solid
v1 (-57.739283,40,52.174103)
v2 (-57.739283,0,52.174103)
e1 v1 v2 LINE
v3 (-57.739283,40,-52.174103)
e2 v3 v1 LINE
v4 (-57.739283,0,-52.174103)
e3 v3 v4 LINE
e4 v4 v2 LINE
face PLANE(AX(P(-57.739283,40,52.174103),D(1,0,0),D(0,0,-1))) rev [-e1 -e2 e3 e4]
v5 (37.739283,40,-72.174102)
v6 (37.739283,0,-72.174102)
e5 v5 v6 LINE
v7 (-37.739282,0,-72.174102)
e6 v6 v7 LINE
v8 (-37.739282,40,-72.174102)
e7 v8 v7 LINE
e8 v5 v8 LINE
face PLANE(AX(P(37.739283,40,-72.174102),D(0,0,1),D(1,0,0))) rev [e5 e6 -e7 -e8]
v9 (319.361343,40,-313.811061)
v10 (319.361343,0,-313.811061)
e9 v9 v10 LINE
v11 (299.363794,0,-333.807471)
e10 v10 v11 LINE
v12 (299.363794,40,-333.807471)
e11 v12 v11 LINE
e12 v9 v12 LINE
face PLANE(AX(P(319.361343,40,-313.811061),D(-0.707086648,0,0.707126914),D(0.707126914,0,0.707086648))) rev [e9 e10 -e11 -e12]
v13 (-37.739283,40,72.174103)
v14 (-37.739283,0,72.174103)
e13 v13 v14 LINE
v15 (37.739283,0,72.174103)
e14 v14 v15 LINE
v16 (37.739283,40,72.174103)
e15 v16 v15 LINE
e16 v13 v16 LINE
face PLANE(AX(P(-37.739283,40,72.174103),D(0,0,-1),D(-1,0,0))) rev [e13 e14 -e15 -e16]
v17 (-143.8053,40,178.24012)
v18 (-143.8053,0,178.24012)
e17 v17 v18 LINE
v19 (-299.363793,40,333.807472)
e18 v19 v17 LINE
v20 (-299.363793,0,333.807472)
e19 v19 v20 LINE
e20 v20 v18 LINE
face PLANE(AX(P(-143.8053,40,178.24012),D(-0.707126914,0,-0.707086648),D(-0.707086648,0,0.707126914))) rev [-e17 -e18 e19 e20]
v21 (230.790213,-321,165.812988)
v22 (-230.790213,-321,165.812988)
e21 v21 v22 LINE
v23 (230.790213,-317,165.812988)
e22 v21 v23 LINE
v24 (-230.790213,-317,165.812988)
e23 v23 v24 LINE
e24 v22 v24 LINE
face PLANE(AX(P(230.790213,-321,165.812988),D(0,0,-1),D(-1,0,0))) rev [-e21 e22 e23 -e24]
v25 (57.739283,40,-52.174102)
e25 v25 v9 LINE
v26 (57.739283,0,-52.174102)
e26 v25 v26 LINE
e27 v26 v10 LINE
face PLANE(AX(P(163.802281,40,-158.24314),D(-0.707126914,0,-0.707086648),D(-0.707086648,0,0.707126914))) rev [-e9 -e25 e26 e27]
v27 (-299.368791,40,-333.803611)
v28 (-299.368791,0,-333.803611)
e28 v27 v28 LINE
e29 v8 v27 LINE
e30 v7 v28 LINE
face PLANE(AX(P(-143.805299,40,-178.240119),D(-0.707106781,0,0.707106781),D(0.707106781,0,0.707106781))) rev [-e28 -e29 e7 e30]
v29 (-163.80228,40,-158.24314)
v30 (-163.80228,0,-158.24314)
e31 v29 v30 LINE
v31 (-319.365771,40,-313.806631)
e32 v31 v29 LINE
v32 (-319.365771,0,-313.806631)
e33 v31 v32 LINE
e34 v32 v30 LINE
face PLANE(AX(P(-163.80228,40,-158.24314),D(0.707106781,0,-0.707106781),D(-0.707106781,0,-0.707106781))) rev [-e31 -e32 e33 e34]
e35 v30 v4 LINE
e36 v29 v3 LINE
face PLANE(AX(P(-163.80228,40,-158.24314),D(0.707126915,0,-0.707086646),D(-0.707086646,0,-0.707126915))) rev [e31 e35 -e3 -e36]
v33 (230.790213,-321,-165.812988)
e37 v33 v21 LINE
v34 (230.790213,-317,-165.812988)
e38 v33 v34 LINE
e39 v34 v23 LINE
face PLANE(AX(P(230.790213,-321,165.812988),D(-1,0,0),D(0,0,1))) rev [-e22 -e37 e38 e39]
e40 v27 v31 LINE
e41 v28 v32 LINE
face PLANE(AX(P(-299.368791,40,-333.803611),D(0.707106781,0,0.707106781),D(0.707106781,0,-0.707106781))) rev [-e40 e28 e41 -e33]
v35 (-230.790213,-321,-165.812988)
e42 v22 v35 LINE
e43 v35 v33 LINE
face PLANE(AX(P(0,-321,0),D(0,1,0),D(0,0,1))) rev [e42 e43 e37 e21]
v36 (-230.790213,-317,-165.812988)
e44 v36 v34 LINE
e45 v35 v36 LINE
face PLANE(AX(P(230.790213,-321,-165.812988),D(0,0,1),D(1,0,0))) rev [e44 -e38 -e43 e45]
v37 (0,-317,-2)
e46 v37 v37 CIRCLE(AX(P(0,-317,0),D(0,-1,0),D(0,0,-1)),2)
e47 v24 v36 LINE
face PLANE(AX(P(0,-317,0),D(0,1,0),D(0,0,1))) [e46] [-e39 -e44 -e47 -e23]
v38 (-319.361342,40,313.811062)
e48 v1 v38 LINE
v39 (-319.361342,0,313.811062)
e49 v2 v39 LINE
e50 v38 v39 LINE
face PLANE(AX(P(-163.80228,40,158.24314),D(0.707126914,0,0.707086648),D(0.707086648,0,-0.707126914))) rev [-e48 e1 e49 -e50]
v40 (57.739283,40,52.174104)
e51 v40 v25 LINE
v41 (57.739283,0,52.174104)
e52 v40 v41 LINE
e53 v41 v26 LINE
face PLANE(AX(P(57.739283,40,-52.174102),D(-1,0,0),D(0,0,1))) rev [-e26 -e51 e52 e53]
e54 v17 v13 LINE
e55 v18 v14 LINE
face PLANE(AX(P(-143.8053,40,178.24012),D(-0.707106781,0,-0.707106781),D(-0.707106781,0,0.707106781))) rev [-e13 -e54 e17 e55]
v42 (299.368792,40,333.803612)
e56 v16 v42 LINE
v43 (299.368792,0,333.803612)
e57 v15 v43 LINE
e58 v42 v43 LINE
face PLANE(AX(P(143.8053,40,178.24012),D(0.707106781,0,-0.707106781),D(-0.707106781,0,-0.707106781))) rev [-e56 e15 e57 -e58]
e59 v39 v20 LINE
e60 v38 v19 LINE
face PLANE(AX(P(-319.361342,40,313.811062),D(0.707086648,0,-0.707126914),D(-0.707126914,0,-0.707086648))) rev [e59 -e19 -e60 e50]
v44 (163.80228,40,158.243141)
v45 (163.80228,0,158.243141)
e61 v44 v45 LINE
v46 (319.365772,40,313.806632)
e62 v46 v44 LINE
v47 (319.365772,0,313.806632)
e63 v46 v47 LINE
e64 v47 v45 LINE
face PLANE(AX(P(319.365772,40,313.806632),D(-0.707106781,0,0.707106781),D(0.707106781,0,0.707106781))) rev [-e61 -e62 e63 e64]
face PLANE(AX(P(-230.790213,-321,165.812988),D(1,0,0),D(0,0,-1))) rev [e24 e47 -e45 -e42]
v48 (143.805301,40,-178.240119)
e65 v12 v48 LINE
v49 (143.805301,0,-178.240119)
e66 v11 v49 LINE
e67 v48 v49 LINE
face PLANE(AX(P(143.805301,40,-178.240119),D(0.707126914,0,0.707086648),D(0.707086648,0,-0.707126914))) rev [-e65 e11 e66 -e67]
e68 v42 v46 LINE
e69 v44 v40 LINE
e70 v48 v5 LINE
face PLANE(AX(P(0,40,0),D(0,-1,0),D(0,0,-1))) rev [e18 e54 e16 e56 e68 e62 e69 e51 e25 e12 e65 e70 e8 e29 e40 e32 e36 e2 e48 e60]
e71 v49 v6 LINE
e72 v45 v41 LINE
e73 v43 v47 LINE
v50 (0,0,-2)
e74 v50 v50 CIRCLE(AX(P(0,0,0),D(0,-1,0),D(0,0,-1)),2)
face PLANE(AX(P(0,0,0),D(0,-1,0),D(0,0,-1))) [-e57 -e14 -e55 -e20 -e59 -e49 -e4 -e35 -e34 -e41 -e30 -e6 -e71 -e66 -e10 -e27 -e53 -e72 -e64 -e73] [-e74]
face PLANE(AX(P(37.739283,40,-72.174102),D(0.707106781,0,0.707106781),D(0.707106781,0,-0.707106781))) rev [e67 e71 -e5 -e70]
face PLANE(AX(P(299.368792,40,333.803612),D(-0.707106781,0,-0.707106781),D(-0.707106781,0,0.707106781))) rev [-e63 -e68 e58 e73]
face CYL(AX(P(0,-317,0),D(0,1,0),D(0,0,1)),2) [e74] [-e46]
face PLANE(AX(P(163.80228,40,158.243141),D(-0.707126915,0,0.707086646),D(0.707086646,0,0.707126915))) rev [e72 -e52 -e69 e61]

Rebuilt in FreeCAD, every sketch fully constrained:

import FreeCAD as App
import Part
import Sketcher

V = App.Vector


def add_polygon(sketch, points):
    """Adds a closed chain of lines whose ends are joined by coincident constraints."""
    first, n = sketch.GeometryCount, len(points)
    for a, b in zip(points, points[1:] + points[:1]):
        sketch.addGeometry(Part.LineSegment(App.Vector(*a, 0), App.Vector(*b, 0)), False)
    for i in range(n):
        sketch.addConstraint(Sketcher.Constraint("Coincident", first + i, 2, first + (i + 1) % n, 1))

doc = App.newDocument("Part")
body = doc.addObject("PartDesign::Body", "Body")

# Sketch on XZ plane
sketch1 = body.newObject("Sketcher::SketchObject", "Sketch")
sketch1.AttachmentSupport = (doc.getObject("XZ_Plane"), [""])
sketch1.MapMode = "FlatFace"
add_polygon(sketch1, [(-38, -72), (-299, -334), (-319, -314), (-164, -158), (-58, -52), (-58, 52), (-164, 158), (-319, 314), (-299, 334), (-144, 178), (-38, 72), (38, 72), (144, 178), (299, 334), (319, 314), (164, 158), (58, 52), (58, -52), (164, -158), (319, -314), (299, -334), (144, -178), (38, -72)])  # lines 0-22
sketch1.addConstraint([
    Sketcher.Constraint("Vertical", 4),
    Sketcher.Constraint("Horizontal", 10),
    Sketcher.Constraint("Vertical", 16),
    Sketcher.Constraint("Horizontal", 22),
    Sketcher.Constraint("Symmetric", 0, 2, 12, 2, -1, 1),
    Sketcher.Constraint("Symmetric", 1, 2, 13, 2, -1, 1),
    Sketcher.Constraint("Symmetric", 2, 2, 14, 2, -1, 1),
    Sketcher.Constraint("Symmetric", 3, 2, 15, 2, -1, 1),
    Sketcher.Constraint("Symmetric", 5, 2, 17, 2, -1, 1),
    Sketcher.Constraint("Symmetric", 6, 2, 18, 2, -1, 1),
    Sketcher.Constraint("Symmetric", 7, 2, 19, 2, -1, 1),
    Sketcher.Constraint("Symmetric", 8, 2, 20, 2, -1, 1),
    Sketcher.Constraint("Symmetric", 9, 2, 21, 2, -1, 1),
    Sketcher.Constraint("Symmetric", 8, 2, 11, 2, -2),
    Sketcher.Constraint("Symmetric", 5, 2, 14, 2, -2),
    Sketcher.Constraint("Perpendicular", 0, 1),
    Sketcher.Constraint("Perpendicular", 1, 2),
    Sketcher.Constraint("Parallel", 5, 6),
    Sketcher.Constraint("Perpendicular", 6, 7),
    Sketcher.Constraint("Perpendicular", 7, 8),
    Sketcher.Constraint("Perpendicular", 2, 9),
    Sketcher.Constraint("Perpendicular", 9, 11),
    Sketcher.Constraint("Parallel", 11, 12),
    Sketcher.Constraint("Parallel", 8, 17),
    Sketcher.Constraint("Horizontal", 4, 2, 15, 2),
    Sketcher.Constraint("Vertical", 10, 2, 21, 2),
    Sketcher.Constraint("Equal", 2, 6),
    Sketcher.Constraint("Equal", 5, 9),
    Sketcher.Constraint("Equal", 6, 12),
    Sketcher.Constraint("Distance", 0, 370.0),
    Sketcher.Constraint("Distance", 2, 219.999999),
    Sketcher.Constraint("DistanceX", 4, 2, 9, 2, 20.0),
    Sketcher.Constraint("Distance", 1, 28.28),
    Sketcher.Constraint("DistanceX", 8, 2, -1, 1, 143.8053),
    Sketcher.Constraint("DistanceY", 2, 2, 6, 2, 472.054202),
])
pad1 = body.newObject("PartDesign::Pad", "Pad")
pad1.Profile = sketch1
pad1.Length = 40
pad1.Reversed = True

# Sketch on XZ plane
sketch2 = body.newObject("Sketcher::SketchObject", "Sketch001")
sketch2.AttachmentSupport = (doc.getObject("XZ_Plane"), [""])
sketch2.MapMode = "FlatFace"
sketch2.addGeometry(Part.Circle(V(0, 0, 0), V(0, 0, 1), 2), False)
sketch2.addConstraint([
    Sketcher.Constraint("Coincident", 0, 3, -1, 1),
    Sketcher.Constraint("Diameter", 0, 4.0),
])
pad2 = body.newObject("PartDesign::Pad", "Pad001")
pad2.Profile = sketch2
pad2.Length = 317

# Sketch on XZ plane
sketch3 = body.newObject("Sketcher::SketchObject", "Sketch002")
sketch3.AttachmentSupport = (doc.getObject("XZ_Plane"), [""])
sketch3.MapMode = "FlatFace"
sketch3.AttachmentOffset = App.Placement(V(0, 0, 317), App.Rotation())
add_polygon(sketch3, [(-231, 166), (-231, -166), (231, -166), (231, 166)])  # lines 0-3
sketch3.addConstraint([
    Sketcher.Constraint("Vertical", 0),
    Sketcher.Constraint("Horizontal", 1),
    Sketcher.Constraint("Vertical", 2),
    Sketcher.Constraint("Horizontal", 3),
    Sketcher.Constraint("Symmetric", 0, 2, 2, 2, -1, 1),
    Sketcher.Constraint("DistanceX", 1, 1, 1, 2, 461.580427),
    Sketcher.Constraint("DistanceY", 0, 2, 0, 1, 331.625976),
])
pad3 = body.newObject("PartDesign::Pad", "Pad002")
pad3.Profile = sketch3
pad3.Length = 4

doc.recompute()
